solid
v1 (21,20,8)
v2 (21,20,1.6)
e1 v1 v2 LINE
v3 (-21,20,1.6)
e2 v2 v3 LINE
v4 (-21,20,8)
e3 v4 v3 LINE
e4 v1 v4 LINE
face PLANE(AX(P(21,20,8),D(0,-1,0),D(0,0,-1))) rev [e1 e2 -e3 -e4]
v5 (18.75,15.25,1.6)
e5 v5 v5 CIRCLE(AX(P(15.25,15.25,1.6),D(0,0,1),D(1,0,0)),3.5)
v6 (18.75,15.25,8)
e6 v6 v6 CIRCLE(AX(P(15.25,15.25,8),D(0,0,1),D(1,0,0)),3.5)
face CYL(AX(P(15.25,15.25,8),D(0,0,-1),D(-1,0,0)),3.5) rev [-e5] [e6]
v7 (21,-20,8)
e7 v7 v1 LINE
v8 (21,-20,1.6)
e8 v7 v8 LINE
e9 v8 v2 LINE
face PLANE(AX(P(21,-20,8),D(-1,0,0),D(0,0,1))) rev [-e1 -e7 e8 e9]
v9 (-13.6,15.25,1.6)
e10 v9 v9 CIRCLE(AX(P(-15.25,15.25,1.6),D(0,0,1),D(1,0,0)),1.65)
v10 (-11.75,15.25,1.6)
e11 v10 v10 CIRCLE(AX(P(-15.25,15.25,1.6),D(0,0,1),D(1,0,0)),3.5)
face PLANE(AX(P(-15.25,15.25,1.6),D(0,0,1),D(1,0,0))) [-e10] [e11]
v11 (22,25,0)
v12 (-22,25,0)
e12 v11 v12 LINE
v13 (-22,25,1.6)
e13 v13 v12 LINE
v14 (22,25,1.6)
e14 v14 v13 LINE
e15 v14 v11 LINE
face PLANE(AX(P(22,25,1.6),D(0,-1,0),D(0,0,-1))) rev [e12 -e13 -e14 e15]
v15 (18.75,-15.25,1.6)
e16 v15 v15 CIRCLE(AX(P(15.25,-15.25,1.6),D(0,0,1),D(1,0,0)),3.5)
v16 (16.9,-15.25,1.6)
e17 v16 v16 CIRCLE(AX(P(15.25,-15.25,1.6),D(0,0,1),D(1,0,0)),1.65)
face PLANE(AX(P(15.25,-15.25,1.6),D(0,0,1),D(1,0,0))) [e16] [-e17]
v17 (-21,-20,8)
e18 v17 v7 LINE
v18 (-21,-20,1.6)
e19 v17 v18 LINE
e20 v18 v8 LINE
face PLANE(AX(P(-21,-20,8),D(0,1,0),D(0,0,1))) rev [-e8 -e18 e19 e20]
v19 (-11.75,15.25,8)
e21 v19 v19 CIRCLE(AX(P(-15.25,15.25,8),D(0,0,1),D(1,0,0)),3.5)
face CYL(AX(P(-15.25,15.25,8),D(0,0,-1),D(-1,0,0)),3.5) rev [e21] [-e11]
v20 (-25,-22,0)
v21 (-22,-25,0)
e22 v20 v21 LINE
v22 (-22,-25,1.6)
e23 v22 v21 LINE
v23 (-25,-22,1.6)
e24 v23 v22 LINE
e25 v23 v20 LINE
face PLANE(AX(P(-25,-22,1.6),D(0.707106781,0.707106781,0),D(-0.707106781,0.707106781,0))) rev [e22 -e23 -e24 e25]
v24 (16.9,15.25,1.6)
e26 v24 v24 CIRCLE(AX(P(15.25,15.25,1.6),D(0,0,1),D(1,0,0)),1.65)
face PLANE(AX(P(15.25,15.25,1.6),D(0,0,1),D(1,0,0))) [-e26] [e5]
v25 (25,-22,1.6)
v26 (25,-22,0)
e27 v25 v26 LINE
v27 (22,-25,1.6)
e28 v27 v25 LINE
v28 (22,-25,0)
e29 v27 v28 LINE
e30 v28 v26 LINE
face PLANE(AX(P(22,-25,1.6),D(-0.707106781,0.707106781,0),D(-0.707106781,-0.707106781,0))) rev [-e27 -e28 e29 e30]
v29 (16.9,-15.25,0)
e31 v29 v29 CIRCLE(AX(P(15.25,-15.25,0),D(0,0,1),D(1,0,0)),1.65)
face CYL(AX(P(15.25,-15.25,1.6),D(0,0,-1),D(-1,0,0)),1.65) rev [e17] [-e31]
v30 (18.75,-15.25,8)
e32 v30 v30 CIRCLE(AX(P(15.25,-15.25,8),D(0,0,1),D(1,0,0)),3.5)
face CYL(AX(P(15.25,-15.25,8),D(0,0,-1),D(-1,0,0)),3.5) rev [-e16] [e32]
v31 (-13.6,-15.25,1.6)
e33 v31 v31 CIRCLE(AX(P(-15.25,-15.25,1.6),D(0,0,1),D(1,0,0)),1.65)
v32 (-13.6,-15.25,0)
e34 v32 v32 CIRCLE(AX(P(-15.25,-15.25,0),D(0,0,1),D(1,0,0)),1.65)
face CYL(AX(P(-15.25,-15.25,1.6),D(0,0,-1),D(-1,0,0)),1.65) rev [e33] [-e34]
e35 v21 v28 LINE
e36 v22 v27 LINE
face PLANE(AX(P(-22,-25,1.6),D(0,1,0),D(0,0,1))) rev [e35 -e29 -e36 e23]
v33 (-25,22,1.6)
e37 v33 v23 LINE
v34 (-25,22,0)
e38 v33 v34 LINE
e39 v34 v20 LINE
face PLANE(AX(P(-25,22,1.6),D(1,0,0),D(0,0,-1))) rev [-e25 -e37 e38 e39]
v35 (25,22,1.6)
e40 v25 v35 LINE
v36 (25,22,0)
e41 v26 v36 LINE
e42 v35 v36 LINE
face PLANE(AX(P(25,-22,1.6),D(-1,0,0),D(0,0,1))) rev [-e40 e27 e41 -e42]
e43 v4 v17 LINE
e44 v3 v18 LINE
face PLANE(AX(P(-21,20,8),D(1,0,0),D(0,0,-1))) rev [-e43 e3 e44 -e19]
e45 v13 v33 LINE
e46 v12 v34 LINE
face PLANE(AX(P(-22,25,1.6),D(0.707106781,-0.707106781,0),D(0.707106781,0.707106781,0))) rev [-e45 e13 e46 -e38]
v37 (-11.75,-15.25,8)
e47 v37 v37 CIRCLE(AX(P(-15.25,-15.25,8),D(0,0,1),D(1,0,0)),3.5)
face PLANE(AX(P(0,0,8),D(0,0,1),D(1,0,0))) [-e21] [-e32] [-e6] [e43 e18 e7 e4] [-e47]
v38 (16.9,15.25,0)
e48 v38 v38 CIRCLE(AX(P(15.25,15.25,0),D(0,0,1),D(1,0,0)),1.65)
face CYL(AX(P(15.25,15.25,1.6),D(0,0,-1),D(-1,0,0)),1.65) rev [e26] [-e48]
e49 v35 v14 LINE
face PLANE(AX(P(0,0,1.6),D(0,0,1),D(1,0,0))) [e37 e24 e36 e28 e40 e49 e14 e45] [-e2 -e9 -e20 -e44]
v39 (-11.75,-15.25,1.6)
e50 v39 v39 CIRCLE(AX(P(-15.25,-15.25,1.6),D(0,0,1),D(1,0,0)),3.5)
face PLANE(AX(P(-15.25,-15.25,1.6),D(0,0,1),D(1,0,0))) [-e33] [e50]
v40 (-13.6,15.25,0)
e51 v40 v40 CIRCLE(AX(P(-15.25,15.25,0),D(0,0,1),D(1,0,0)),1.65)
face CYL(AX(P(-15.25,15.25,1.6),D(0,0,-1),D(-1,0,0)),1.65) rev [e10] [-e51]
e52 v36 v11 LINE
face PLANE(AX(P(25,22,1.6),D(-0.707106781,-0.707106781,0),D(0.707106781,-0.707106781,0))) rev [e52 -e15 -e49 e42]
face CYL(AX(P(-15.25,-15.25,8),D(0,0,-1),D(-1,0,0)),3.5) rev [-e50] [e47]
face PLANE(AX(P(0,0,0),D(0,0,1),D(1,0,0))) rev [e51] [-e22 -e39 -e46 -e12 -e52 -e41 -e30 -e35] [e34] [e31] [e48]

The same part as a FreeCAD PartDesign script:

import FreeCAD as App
import Part
import Sketcher

V = App.Vector
Q = App.Units.Quantity


def add_polygon(sketch, points):
    """Adds a closed chain of lines whose ends are joined by coincident constraints."""
    first, n = sketch.GeometryCount, len(points)
    for a, b in zip(points, points[1:] + points[:1]):
        sketch.addGeometry(Part.LineSegment(App.Vector(*a, 0), App.Vector(*b, 0)), False)
    for i in range(n):
        sketch.addConstraint(Sketcher.Constraint("Coincident", first + i, 2, first + (i + 1) % n, 1))

doc = App.newDocument("Part")
body = doc.addObject("PartDesign::Body", "Body")

# Sketch on XY plane
sketch1 = body.newObject("Sketcher::SketchObject", "Sketch")
sketch1.AttachmentSupport = (doc.getObject("XY_Plane"), [""])
sketch1.MapMode = "FlatFace"
add_polygon(sketch1, [(-22, -25), (22, -25), (25, -22), (25, 22), (22, 25), (-22, 25), (-25, 22), (-25, -22)])  # lines 0-7
sketch1.addGeometry(Part.Circle(V(-15.2, -15.2, 0), V(0, 0, 1), 1.6), False)  # 8
sketch1.addGeometry(Part.Circle(V(15.2, -15.2, 0), V(0, 0, 1), 1.6), False)  # 9
sketch1.addGeometry(Part.Circle(V(-15.2, 15.2, 0), V(0, 0, 1), 1.6), False)  # 10
sketch1.addGeometry(Part.Circle(V(15.2, 15.2, 0), V(0, 0, 1), 1.6), False)  # 11
sketch1.addConstraint(Sketcher.Constraint("Horizontal", 0))
sketch1.addConstraint(Sketcher.Constraint("Vertical", 2))
sketch1.addConstraint(Sketcher.Constraint("Horizontal", 4))
sketch1.addConstraint(Sketcher.Constraint("Vertical", 6))
sketch1.addConstraint(Sketcher.Constraint("Equal", 8, 9))
sketch1.addConstraint(Sketcher.Constraint("Equal", 9, 10))
sketch1.addConstraint(Sketcher.Constraint("Equal", 10, 11))
sketch1.addConstraint(Sketcher.Constraint("Symmetric", 9, 3, 10, 3, -1, 1))
sketch1.addConstraint(Sketcher.Constraint("Symmetric", 8, 3, 11, 3, -1, 1))
sketch1.addConstraint(Sketcher.Constraint("Symmetric", 0, 2, 4, 2, -1, 1))
sketch1.addConstraint(Sketcher.Constraint("Symmetric", 1, 2, 5, 2, -1, 1))
sketch1.addConstraint(Sketcher.Constraint("Symmetric", 8, 3, 9, 3, -2))
sketch1.addConstraint(Sketcher.Constraint("Perpendicular", 1, 3))
sketch1.addConstraint(Sketcher.Constraint("Perpendicular", 5, 7))
sketch1.addConstraint(Sketcher.Constraint("Horizontal", 2, 2, 5, 2))
sketch1.addConstraint(Sketcher.Constraint("Horizontal", 1, 2, 6, 2))
sketch1.addConstraint(Sketcher.Constraint("Vertical", 0, 2, 3, 2))
sketch1.addConstraint(Sketcher.Constraint("Equal", 4, 2))
sketch1.addConstraint(Sketcher.Constraint("Diameter", 8, Q("3.3 mm")))
sketch1.addConstraint(Sketcher.Constraint("DistanceX", 0, 1, 0, 2, Q("44 mm")))
sketch1.addConstraint(Sketcher.Constraint("DistanceY", 0, 2, -1, 1, Q("25 mm")))
sketch1.addConstraint(Sketcher.Constraint("DistanceX", 8, 3, 9, 3, Q("30.5 mm")))
sketch1.addConstraint(Sketcher.Constraint("DistanceY", 8, 3, 10, 3, Q("30.5 mm")))
pad1 = body.newObject("PartDesign::Pad", "Pad")
pad1.Profile = sketch1
pad1.Length = 1.6

# Sketch on XY plane
sketch2 = body.newObject("Sketcher::SketchObject", "Sketch001")
sketch2.AttachmentSupport = (doc.getObject("XY_Plane"), [""])
sketch2.MapMode = "FlatFace"
sketch2.AttachmentOffset = App.Placement(V(0, 0, 1.6), App.Rotation())
add_polygon(sketch2, [(-21, 20), (-21, -20), (21, -20), (21, 20)])  # lines 0-3
sketch2.addConstraint(Sketcher.Constraint("Vertical", 0))
sketch2.addConstraint(Sketcher.Constraint("Horizontal", 1))
sketch2.addConstraint(Sketcher.Constraint("Vertical", 2))
sketch2.addConstraint(Sketcher.Constraint("Horizontal", 3))
sketch2.addConstraint(Sketcher.Constraint("Symmetric", 0, 2, 2, 2, -1, 1))
sketch2.addConstraint(Sketcher.Constraint("DistanceX", 1, 1, 1, 2, Q("42 mm")))
sketch2.addConstraint(Sketcher.Constraint("DistanceY", 0, 2, 0, 1, Q("40 mm")))
pad2 = body.newObject("PartDesign::Pad", "Pad001")
pad2.Profile = sketch2
pad2.Length = 6.4

# Sketch on XY plane
sketch3 = body.newObject("Sketcher::SketchObject", "Sketch002")
sketch3.AttachmentSupport = (doc.getObject("XY_Plane"), [""])
sketch3.MapMode = "FlatFace"
sketch3.AttachmentOffset = App.Placement(V(0, 0, 1.6), App.Rotation())
sketch3.addGeometry(Part.Circle(V(-15.2, -15.2, 0), V(0, 0, 1), 3.5), False)
sketch3.addGeometry(Part.Circle(V(-15.2, 15.2, 0), V(0, 0, 1), 3.5), False)
sketch3.addGeometry(Part.Circle(V(15.2, -15.2, 0), V(0, 0, 1), 3.5), False)
sketch3.addGeometry(Part.Circle(V(15.2, 15.2, 0), V(0, 0, 1), 3.5), False)
sketch3.addConstraint(Sketcher.Constraint("Equal", 0, 1))
sketch3.addConstraint(Sketcher.Constraint("Equal", 1, 2))
sketch3.addConstraint(Sketcher.Constraint("Equal", 2, 3))
sketch3.addConstraint(Sketcher.Constraint("Symmetric", 1, 3, 2, 3, -1, 1))
sketch3.addConstraint(Sketcher.Constraint("Symmetric", 0, 3, 3, 3, -1, 1))
sketch3.addConstraint(Sketcher.Constraint("Symmetric", 0, 3, 2, 3, -2))
sketch3.addConstraint(Sketcher.Constraint("Diameter", 0, Q("7 mm")))
sketch3.addConstraint(Sketcher.Constraint("DistanceY", 0, 3, 1, 3, Q("30.5 mm")))
sketch3.addConstraint(Sketcher.Constraint("DistanceX", 0, 3, 2, 3, Q("30.5 mm")))
pocket1 = body.newObject("PartDesign::Pocket", "Pocket")
pocket1.Profile = sketch3
pocket1.Length = 6.4
pocket1.Reversed = True

doc.recompute()
